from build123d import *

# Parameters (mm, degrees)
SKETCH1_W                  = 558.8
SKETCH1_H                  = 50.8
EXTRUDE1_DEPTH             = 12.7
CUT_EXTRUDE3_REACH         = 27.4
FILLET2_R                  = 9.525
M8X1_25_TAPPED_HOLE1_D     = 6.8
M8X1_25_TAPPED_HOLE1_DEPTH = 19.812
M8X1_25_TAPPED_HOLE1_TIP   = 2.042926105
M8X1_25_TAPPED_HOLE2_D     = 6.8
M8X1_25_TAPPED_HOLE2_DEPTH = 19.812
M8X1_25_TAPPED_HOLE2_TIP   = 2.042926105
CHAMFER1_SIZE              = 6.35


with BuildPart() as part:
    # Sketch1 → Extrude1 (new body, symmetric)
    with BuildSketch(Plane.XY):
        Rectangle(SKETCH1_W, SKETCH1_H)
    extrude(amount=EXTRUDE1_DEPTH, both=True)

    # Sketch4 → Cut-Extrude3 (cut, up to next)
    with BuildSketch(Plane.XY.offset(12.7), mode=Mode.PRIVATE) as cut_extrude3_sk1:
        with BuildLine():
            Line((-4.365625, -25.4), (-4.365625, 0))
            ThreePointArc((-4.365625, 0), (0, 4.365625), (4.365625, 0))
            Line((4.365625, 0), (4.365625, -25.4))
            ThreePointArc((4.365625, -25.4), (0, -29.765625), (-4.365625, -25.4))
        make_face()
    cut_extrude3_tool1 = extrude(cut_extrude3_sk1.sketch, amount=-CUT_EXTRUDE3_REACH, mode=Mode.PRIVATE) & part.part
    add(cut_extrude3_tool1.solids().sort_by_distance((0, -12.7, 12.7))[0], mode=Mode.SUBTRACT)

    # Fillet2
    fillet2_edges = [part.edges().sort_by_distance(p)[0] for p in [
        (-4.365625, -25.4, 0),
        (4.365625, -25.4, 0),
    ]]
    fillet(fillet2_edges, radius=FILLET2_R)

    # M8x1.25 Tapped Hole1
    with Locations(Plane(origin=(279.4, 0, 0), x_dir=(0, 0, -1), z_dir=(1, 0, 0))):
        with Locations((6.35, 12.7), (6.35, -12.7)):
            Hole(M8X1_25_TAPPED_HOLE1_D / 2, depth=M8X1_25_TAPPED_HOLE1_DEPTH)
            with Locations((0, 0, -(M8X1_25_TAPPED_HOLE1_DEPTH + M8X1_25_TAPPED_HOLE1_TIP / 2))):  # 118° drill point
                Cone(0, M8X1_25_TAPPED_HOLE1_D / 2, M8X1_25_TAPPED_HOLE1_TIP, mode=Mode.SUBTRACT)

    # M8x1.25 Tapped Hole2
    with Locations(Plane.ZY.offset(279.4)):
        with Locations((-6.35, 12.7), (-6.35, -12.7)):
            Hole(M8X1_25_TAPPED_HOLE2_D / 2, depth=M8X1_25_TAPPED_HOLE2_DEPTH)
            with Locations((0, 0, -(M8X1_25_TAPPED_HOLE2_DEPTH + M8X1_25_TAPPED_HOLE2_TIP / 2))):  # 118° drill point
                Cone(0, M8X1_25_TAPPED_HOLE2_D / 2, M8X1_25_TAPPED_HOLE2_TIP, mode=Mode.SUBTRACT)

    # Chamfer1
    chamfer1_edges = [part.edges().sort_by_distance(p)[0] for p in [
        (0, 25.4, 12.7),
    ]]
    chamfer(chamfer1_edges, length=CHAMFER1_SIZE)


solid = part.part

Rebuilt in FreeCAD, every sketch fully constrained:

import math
import FreeCAD as App
import Part
import Sketcher

V = App.Vector
Q = App.Units.Quantity


def edges_at(feature, points):
    """Names of the edges that pass closest to the given points."""
    edges = feature.Shape.Edges
    near = lambda p: min(range(len(edges)), key=lambda i: edges[i].distToShape(Part.Vertex(*p))[0])
    return sorted({f"Edge{near(p) + 1}" for p in points})

doc = App.newDocument("Part")
body = doc.addObject("PartDesign::Body", "Body")

# Sketch on XY plane
sketch1 = body.newObject("Sketcher::SketchObject", "Sketch")
sketch1.AttachmentSupport = (doc.getObject("XY_Plane"), [""])
sketch1.MapMode = "FlatFace"
sketch1.addGeometry([
    Part.LineSegment(V(-279.4, 25.4, 0), V(-279.4, -25.4, 0)),
    Part.LineSegment(V(-279.4, -25.4, 0), V(279.4, -25.4, 0)),
    Part.LineSegment(V(279.4, -25.4, 0), V(279.4, 25.4, 0)),
    Part.LineSegment(V(279.4, 25.4, 0), V(-279.4, 25.4, 0)),
], False)
sketch1.addConstraint([
    Sketcher.Constraint("Coincident", 0, 2, 1, 1),
    Sketcher.Constraint("Coincident", 1, 2, 2, 1),
    Sketcher.Constraint("Coincident", 2, 2, 3, 1),
    Sketcher.Constraint("Coincident", 3, 2, 0, 1),
    Sketcher.Constraint("Vertical", 0),
    Sketcher.Constraint("Horizontal", 1),
    Sketcher.Constraint("Vertical", 2),
    Sketcher.Constraint("Horizontal", 3),
    Sketcher.Constraint("Symmetric", 0, 2, 2, 2, -1, 1),
    Sketcher.Constraint("DistanceX", 1, 1, 1, 2, Q("22 in")),
    Sketcher.Constraint("DistanceY", 0, 2, 0, 1, Q("2 in")),
])
pad1 = body.newObject("PartDesign::Pad", "Pad")
pad1.Profile = sketch1
pad1.Length = Q("1 in")
pad1.Midplane = True

# Sketch on XY plane
sketch2 = body.newObject("Sketcher::SketchObject", "Sketch001")
sketch2.AttachmentSupport = (doc.getObject("XY_Plane"), [""])
sketch2.MapMode = "FlatFace"
sketch2.AttachmentOffset = App.Placement(V(0, 0, 0.5 * 25.4), App.Rotation())
sketch2.addGeometry([
    Part.LineSegment(V(-4.365625, 0, 0), V(-4.365625, -25.4, 0)),
    Part.ArcOfCircle(Part.Circle(V(0, -25.4, 0), V(0, 0, 1), 4.365625), math.radians(180), math.radians(360)),
    Part.LineSegment(V(4.365625, -25.4, 0), V(4.365625, 0, 0)),
    Part.ArcOfCircle(Part.Circle(V(0, 0, 0), V(0, 0, 1), 4.365625), math.radians(0), math.radians(180)),
], False)
sketch2.addConstraint([
    Sketcher.Constraint("Tangent", 0, 2, 1, 1),
    Sketcher.Constraint("Tangent", 1, 2, 2, 1),
    Sketcher.Constraint("Tangent", 2, 2, 3, 1),
    Sketcher.Constraint("Tangent", 3, 2, 0, 1),
    Sketcher.Constraint("Vertical", 0),
    Sketcher.Constraint("Vertical", 2),
    Sketcher.Constraint("Coincident", 3, 3, -1, 1),
    Sketcher.Constraint("DistanceY", 0, 2, 0, 1, Q("1 in")),
    Sketcher.Constraint("Radius", 1, Q("0.171875 in")),
])
pocket1 = body.newObject("PartDesign::Pocket", "Pocket")
pocket1.Profile = sketch2
pocket1.Type = "UpToFirst"
doc.recompute()

fillet = body.newObject("PartDesign::Fillet", "Fillet")
fillet.Base = (pocket1, edges_at(pocket1, [(-4.366, -25.4, 0), (4.366, -25.4, 0)]))
fillet.Radius = Q("0.375 in")

# Sketch on YZ plane
sketch3 = body.newObject("Sketcher::SketchObject", "Sketch002")
sketch3.AttachmentSupport = (doc.getObject("YZ_Plane"), [""])
sketch3.MapMode = "FlatFace"
sketch3.AttachmentOffset = App.Placement(V(0, 0, 11 * 25.4), App.Rotation())
sketch3.addGeometry([
    Part.Circle(V(12.7, -6.35, 0), V(0, 0, 1), 3.4),
    Part.Circle(V(-12.7, -6.35, 0), V(0, 0, 1), 3.4),
], False)
sketch3.addConstraint([
    Sketcher.Constraint("Equal", 0, 1),
    Sketcher.Constraint("Symmetric", 0, 3, 1, 3, -2),
    Sketcher.Constraint("DistanceX", 1, 3, 0, 3, Q("1 in")),
    Sketcher.Constraint("Diameter", 0, 6.8),
    Sketcher.Constraint("DistanceY", 0, 3, -1, 1, Q("0.25 in")),
])
doc.recompute()
hole = body.newObject("PartDesign::Hole", "Hole")
hole.Profile = sketch3
hole.ThreadType = "None"
hole.Diameter = 6.8
hole.DepthType = "Dimension"
hole.Depth = Q("0.78 in")
hole.DrillPoint = "Angled"
hole.DrillPointAngle = 118

# Sketch on YZ plane
sketch4 = body.newObject("Sketcher::SketchObject", "Sketch003")
sketch4.AttachmentSupport = (doc.getObject("YZ_Plane"), [""])
sketch4.MapMode = "FlatFace"
sketch4.AttachmentOffset = App.Placement(V(0, 0, -11 * 25.4), App.Rotation())
sketch4.addGeometry([
    Part.Circle(V(12.7, -6.35, 0), V(0, 0, 1), 3.4),
    Part.Circle(V(-12.7, -6.35, 0), V(0, 0, 1), 3.4),
], False)
sketch4.addConstraint([
    Sketcher.Constraint("Equal", 0, 1),
    Sketcher.Constraint("Symmetric", 0, 3, 1, 3, -2),
    Sketcher.Constraint("DistanceX", 1, 3, 0, 3, Q("1 in")),
    Sketcher.Constraint("Diameter", 0, 6.8),
    Sketcher.Constraint("DistanceY", 0, 3, -1, 1, Q("0.25 in")),
])
doc.recompute()
hole2 = body.newObject("PartDesign::Hole", "Hole001")
hole2.Profile = sketch4
hole2.ThreadType = "None"
hole2.Diameter = 6.8
hole2.DepthType = "Dimension"
hole2.Depth = Q("0.78 in")
hole2.DrillPoint = "Angled"
hole2.DrillPointAngle = 118
hole2.Reversed = True
doc.recompute()

chamfer = body.newObject("PartDesign::Chamfer", "Chamfer")
chamfer.Base = (hole2, edges_at(hole2, [(0, 25.4, 12.7)]))
chamfer.Size = Q("0.25 in")

doc.recompute()
